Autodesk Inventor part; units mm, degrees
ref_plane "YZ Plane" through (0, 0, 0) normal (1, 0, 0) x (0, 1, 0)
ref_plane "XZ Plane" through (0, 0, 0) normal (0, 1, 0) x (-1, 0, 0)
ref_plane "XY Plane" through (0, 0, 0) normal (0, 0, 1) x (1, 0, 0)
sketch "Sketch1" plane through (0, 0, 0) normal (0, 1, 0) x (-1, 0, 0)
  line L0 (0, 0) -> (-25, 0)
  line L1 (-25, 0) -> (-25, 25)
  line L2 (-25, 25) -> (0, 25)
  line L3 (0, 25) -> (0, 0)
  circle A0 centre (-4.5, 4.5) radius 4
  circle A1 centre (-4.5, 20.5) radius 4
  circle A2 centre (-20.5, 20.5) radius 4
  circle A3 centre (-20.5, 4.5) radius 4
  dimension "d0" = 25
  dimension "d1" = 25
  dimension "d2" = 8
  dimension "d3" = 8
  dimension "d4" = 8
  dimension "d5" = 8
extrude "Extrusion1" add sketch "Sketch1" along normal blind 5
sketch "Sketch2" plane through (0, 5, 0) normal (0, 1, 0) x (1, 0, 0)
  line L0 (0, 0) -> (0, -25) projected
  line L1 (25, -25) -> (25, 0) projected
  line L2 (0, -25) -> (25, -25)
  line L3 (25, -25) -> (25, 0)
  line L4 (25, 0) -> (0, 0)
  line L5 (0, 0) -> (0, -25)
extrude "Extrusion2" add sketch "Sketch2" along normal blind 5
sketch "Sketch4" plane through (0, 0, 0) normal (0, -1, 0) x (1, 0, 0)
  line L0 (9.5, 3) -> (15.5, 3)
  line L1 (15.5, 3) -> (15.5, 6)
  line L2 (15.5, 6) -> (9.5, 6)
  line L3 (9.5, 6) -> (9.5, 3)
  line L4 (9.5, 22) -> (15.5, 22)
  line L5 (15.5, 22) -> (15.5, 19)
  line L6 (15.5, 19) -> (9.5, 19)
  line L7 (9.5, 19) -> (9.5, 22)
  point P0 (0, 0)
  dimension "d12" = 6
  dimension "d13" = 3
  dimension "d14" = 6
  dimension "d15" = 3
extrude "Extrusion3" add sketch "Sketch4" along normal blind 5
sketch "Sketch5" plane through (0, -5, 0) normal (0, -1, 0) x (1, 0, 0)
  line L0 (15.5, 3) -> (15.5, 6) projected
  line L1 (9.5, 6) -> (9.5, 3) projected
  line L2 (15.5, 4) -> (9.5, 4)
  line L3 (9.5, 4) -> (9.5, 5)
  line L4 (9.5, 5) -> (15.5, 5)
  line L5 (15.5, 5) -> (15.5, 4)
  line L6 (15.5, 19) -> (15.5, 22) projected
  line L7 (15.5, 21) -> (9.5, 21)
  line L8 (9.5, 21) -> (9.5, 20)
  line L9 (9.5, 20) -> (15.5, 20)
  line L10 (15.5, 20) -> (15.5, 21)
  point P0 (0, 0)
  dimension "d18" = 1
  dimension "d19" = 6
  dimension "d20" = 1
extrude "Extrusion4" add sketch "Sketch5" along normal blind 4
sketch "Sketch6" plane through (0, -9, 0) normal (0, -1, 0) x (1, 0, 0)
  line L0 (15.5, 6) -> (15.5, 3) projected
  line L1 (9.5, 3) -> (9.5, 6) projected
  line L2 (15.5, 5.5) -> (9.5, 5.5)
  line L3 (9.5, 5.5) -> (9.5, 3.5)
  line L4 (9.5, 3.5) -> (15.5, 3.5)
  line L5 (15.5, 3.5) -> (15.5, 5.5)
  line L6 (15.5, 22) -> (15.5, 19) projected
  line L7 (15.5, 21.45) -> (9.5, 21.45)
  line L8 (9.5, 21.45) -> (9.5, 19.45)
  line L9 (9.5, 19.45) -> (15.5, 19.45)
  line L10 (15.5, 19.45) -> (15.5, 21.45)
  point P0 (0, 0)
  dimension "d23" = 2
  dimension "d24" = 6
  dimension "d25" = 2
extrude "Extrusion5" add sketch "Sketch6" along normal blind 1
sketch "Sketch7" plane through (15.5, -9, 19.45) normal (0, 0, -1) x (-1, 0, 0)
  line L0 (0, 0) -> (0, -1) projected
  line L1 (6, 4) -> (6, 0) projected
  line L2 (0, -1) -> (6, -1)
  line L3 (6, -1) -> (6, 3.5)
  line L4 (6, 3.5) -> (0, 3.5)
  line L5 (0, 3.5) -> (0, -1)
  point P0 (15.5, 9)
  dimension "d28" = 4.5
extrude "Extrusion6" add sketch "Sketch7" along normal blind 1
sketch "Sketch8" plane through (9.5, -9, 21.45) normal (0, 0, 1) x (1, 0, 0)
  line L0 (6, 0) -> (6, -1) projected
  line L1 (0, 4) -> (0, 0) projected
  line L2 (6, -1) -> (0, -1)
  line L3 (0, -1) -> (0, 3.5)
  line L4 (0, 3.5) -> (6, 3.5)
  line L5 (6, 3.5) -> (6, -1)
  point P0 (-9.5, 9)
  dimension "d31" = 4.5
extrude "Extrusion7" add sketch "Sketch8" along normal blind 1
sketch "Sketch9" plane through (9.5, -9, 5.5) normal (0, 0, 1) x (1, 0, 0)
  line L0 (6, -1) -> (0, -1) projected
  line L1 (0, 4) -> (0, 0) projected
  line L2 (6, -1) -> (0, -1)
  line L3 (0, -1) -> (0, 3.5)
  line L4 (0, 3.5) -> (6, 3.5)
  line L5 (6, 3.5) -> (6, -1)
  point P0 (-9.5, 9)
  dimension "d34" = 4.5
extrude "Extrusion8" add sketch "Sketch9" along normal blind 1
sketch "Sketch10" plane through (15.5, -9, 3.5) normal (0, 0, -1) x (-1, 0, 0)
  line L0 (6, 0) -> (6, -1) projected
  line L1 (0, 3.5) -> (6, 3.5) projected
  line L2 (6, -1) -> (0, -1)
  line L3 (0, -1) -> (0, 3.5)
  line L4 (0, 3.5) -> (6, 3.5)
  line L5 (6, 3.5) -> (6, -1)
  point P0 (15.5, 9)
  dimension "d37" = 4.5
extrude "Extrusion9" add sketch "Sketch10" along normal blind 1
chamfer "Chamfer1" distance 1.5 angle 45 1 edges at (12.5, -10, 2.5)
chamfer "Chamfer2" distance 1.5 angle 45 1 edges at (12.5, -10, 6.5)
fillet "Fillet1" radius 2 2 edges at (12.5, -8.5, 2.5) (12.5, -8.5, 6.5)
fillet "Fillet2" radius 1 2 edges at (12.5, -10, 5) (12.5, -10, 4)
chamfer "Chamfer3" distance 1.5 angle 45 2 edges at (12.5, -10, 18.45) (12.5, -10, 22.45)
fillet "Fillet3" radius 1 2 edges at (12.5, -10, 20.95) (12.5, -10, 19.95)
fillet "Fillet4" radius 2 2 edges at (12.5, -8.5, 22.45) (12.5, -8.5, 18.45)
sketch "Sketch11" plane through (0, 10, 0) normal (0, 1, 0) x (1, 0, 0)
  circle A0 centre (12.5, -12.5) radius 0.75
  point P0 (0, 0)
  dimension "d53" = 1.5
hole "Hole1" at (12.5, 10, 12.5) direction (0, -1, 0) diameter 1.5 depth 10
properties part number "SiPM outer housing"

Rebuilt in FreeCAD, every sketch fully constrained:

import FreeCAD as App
import Part
import Sketcher
from FreeCAD import Vector
Q = App.Units.Quantity


def edges_at(feature, points):
    """Names of the edges that pass closest to the given points."""
    edges = feature.Shape.Edges
    near = lambda p: min(range(len(edges)), key=lambda i: edges[i].distToShape(Part.Vertex(*p))[0])
    return sorted({f"Edge{near(p) + 1}" for p in points})


def add_polygon(sketch, points):
    """Adds a closed chain of lines whose ends are joined by coincident constraints."""
    first, n = sketch.GeometryCount, len(points)
    for a, b in zip(points, points[1:] + points[:1]):
        sketch.addGeometry(Part.LineSegment(App.Vector(*a, 0), App.Vector(*b, 0)), False)
    for i in range(n):
        sketch.addConstraint(Sketcher.Constraint("Coincident", first + i, 2, first + (i + 1) % n, 1))

doc = App.newDocument("Part")
body = doc.addObject("PartDesign::Body", "Body")

# Sketch on XZ plane
sketch1 = body.newObject("Sketcher::SketchObject", "Sketch")
sketch1.AttachmentSupport = (doc.getObject("XZ_Plane"), [""])
sketch1.MapMode = "FlatFace"
add_polygon(sketch1, [(25, 0), (0, 0), (0, 25), (25, 25)])  # lines 0-3
sketch1.addGeometry(Part.Circle(Vector(20.5, 4.5, 0), Vector(0, 0, 1), 4), False)  # 4
sketch1.addGeometry(Part.Circle(Vector(4.5, 4.5, 0), Vector(0, 0, 1), 4), False)  # 5
sketch1.addGeometry(Part.Circle(Vector(20.5, 20.5, 0), Vector(0, 0, 1), 4), False)  # 6
sketch1.addGeometry(Part.Circle(Vector(4.5, 20.5, 0), Vector(0, 0, 1), 4), False)  # 7
sketch1.addConstraint([
    Sketcher.Constraint("Horizontal", 0),
    Sketcher.Constraint("Vertical", 1),
    Sketcher.Constraint("Horizontal", 2),
    Sketcher.Constraint("Vertical", 3),
    Sketcher.Constraint("Coincident", 0, 2, -1, 1),
    Sketcher.Constraint("Equal", 4, 5),
    Sketcher.Constraint("Equal", 5, 6),
    Sketcher.Constraint("Equal", 6, 7),
    Sketcher.Constraint("Horizontal", 4, 3, 5, 3),
    Sketcher.Constraint("Horizontal", 6, 3, 7, 3),
    Sketcher.Constraint("Vertical", 4, 3, 6, 3),
    Sketcher.Constraint("Vertical", 5, 3, 7, 3),
    Sketcher.Constraint("Equal", 2, 1),
    Sketcher.Constraint("Diameter", 4, Q("8 mm")),
    Sketcher.Constraint("DistanceX", 0, 2, 0, 1, Q("25 mm")),
    Sketcher.Constraint("DistanceX", 5, 3, 4, 3, Q("16 mm")),
    Sketcher.Constraint("DistanceY", 4, 3, 6, 3, Q("16 mm")),
    Sketcher.Constraint("DistanceX", -1, 1, 4, 3, Q("20.5 mm")),
    Sketcher.Constraint("DistanceY", -1, 1, 4, 3, Q("4.5 mm")),
])
pad1 = body.newObject("PartDesign::Pad", "Pad")
pad1.Profile = sketch1
pad1.Length = 5
pad1.Reversed = True

# Sketch on XZ plane
sketch2 = body.newObject("Sketcher::SketchObject", "Sketch001")
sketch2.AttachmentSupport = (doc.getObject("XZ_Plane"), [""])
sketch2.MapMode = "FlatFace"
sketch2.AttachmentOffset = App.Placement(Vector(0, 0, -5), App.Rotation())
add_polygon(sketch2, [(25, 0), (0, 0), (0, 25), (25, 25)])  # lines 0-3
sketch2.addConstraint([
    Sketcher.Constraint("Horizontal", 0),
    Sketcher.Constraint("Vertical", 1),
    Sketcher.Constraint("Horizontal", 2),
    Sketcher.Constraint("Vertical", 3),
    Sketcher.Constraint("Coincident", 0, 2, -1, 1),
    Sketcher.Constraint("Equal", 2, 1),
    Sketcher.Constraint("DistanceX", 0, 2, 0, 1, Q("25 mm")),
])
pad2 = body.newObject("PartDesign::Pad", "Pad001")
pad2.Profile = sketch2
pad2.Length = 5
pad2.Reversed = True

# Sketch on XZ plane
sketch3 = body.newObject("Sketcher::SketchObject", "Sketch002")
sketch3.AttachmentSupport = (doc.getObject("XZ_Plane"), [""])
sketch3.MapMode = "FlatFace"
add_polygon(sketch3, [(9.5, 6), (9.5, 3), (15.5, 3), (15.5, 6)])  # lines 0-3
add_polygon(sketch3, [(15.5, 22), (9.5, 22), (9.5, 19), (15.5, 19)])  # lines 4-7
sketch3.addConstraint([
    Sketcher.Constraint("Vertical", 0),
    Sketcher.Constraint("Horizontal", 1),
    Sketcher.Constraint("Vertical", 2),
    Sketcher.Constraint("Horizontal", 3),
    Sketcher.Constraint("Horizontal", 4),
    Sketcher.Constraint("Vertical", 5),
    Sketcher.Constraint("Horizontal", 6),
    Sketcher.Constraint("Vertical", 7),
    Sketcher.Constraint("Vertical", 3, 2, 4, 2),
    Sketcher.Constraint("Vertical", 2, 2, 6, 2),
    Sketcher.Constraint("Equal", 2, 5),
    Sketcher.Constraint("DistanceX", 1, 1, 1, 2, Q("6 mm")),
    Sketcher.Constraint("DistanceY", 0, 2, 0, 1, Q("3 mm")),
    Sketcher.Constraint("DistanceY", -1, 1, 0, 2, Q("3 mm")),
    Sketcher.Constraint("DistanceY", -1, 1, 4, 2, Q("22 mm")),
    Sketcher.Constraint("DistanceX", -1, 1, 0, 2, Q("9.5 mm")),
])
pad3 = body.newObject("PartDesign::Pad", "Pad002")
pad3.Profile = sketch3
pad3.Length = 5

# Sketch on XZ plane
sketch4 = body.newObject("Sketcher::SketchObject", "Sketch003")
sketch4.AttachmentSupport = (doc.getObject("XZ_Plane"), [""])
sketch4.MapMode = "FlatFace"
sketch4.AttachmentOffset = App.Placement(Vector(0, 0, 5), App.Rotation())
add_polygon(sketch4, [(9.5, 4), (15.5, 4), (15.5, 5), (9.5, 5)])  # lines 0-3
add_polygon(sketch4, [(9.5, 20), (15.5, 20), (15.5, 21), (9.5, 21)])  # lines 4-7
sketch4.addConstraint([
    Sketcher.Constraint("Horizontal", 0),
    Sketcher.Constraint("Vertical", 1),
    Sketcher.Constraint("Horizontal", 2),
    Sketcher.Constraint("Vertical", 3),
    Sketcher.Constraint("Horizontal", 4),
    Sketcher.Constraint("Vertical", 5),
    Sketcher.Constraint("Horizontal", 6),
    Sketcher.Constraint("Vertical", 7),
    Sketcher.Constraint("Vertical", 1, 2, 4, 2),
    Sketcher.Constraint("Vertical", 3, 2, 6, 2),
    Sketcher.Constraint("Equal", 3, 5),
    Sketcher.Constraint("DistanceX", 0, 1, 0, 2, Q("6 mm")),
    Sketcher.Constraint("DistanceY", 1, 1, 1, 2, Q("1 mm")),
    Sketcher.Constraint("DistanceY", -1, 1, 0, 2, Q("4 mm")),
    Sketcher.Constraint("DistanceY", -1, 1, 4, 2, Q("20 mm")),
    Sketcher.Constraint("DistanceX", -1, 1, 0, 2, Q("15.5 mm")),
])
pad4 = body.newObject("PartDesign::Pad", "Pad003")
pad4.Profile = sketch4
pad4.Length = 4

# Sketch on XZ plane
sketch5 = body.newObject("Sketcher::SketchObject", "Sketch004")
sketch5.AttachmentSupport = (doc.getObject("XZ_Plane"), [""])
sketch5.MapMode = "FlatFace"
sketch5.AttachmentOffset = App.Placement(Vector(0, 0, 9), App.Rotation())
add_polygon(sketch5, [(15.5, 3.5), (15.5, 5.5), (9.5, 5.5), (9.5, 3.5)])  # lines 0-3
add_polygon(sketch5, [(15.5, 19.45), (15.5, 21.45), (9.5, 21.45), (9.5, 19.45)])  # lines 4-7
sketch5.addConstraint([
    Sketcher.Constraint("Vertical", 0),
    Sketcher.Constraint("Horizontal", 1),
    Sketcher.Constraint("Vertical", 2),
    Sketcher.Constraint("Horizontal", 3),
    Sketcher.Constraint("Vertical", 4),
    Sketcher.Constraint("Horizontal", 5),
    Sketcher.Constraint("Vertical", 6),
    Sketcher.Constraint("Horizontal", 7),
    Sketcher.Constraint("Vertical", 3, 2, 4, 2),
    Sketcher.Constraint("Vertical", 2, 2, 5, 2),
    Sketcher.Constraint("Equal", 2, 4),
    Sketcher.Constraint("DistanceX", 1, 2, 1, 1, Q("6 mm")),
    Sketcher.Constraint("DistanceY", 0, 1, 0, 2, Q("2 mm")),
    Sketcher.Constraint("DistanceX", -1, 1, 0, 2, Q("15.5 mm")),
    Sketcher.Constraint("DistanceY", -1, 1, 0, 2, Q("5.5 mm")),
    Sketcher.Constraint("DistanceY", -1, 1, 4, 2, Q("21.45 mm")),
])
pad5 = body.newObject("PartDesign::Pad", "Pad004")
pad5.Profile = sketch5
pad5.Length = 1

# Sketch on XY plane
sketch6 = body.newObject("Sketcher::SketchObject", "Sketch005")
sketch6.AttachmentSupport = (doc.getObject("XY_Plane"), [""])
sketch6.MapMode = "FlatFace"
sketch6.AttachmentOffset = App.Placement(Vector(0, 0, 19.45), App.Rotation())
add_polygon(sketch6, [(15.5, -5.5), (15.5, -10), (9.5, -10), (9.5, -5.5)])  # lines 0-3
sketch6.addConstraint([
    Sketcher.Constraint("Vertical", 0),
    Sketcher.Constraint("Horizontal", 1),
    Sketcher.Constraint("Vertical", 2),
    Sketcher.Constraint("Horizontal", 3),
    Sketcher.Constraint("DistanceY", 0, 2, 0, 1, Q("4.5 mm")),
    Sketcher.Constraint("DistanceX", 1, 2, 1, 1, Q("6 mm")),
    Sketcher.Constraint("DistanceY", 0, 2, -1, 1, Q("10 mm")),
    Sketcher.Constraint("DistanceX", -1, 1, 0, 2, Q("15.5 mm")),
])
pad6 = body.newObject("PartDesign::Pad", "Pad005")
pad6.Profile = sketch6
pad6.Length = 1
pad6.Reversed = True

# Sketch on XY plane
sketch7 = body.newObject("Sketcher::SketchObject", "Sketch006")
sketch7.AttachmentSupport = (doc.getObject("XY_Plane"), [""])
sketch7.MapMode = "FlatFace"
sketch7.AttachmentOffset = App.Placement(Vector(0, 0, 21.45), App.Rotation())
add_polygon(sketch7, [(15.5, -10), (15.5, -5.5), (9.5, -5.5), (9.5, -10)])  # lines 0-3
sketch7.addConstraint([
    Sketcher.Constraint("Vertical", 0),
    Sketcher.Constraint("Horizontal", 1),
    Sketcher.Constraint("Vertical", 2),
    Sketcher.Constraint("Horizontal", 3),
    Sketcher.Constraint("DistanceY", 0, 1, 0, 2, Q("4.5 mm")),
    Sketcher.Constraint("DistanceX", 1, 2, 1, 1, Q("6 mm")),
    Sketcher.Constraint("DistanceY", 2, 2, -1, 1, Q("10 mm")),
    Sketcher.Constraint("DistanceX", -1, 1, 0, 2, Q("15.5 mm")),
])
pad7 = body.newObject("PartDesign::Pad", "Pad006")
pad7.Profile = sketch7
pad7.Length = 1

# Sketch on XY plane
sketch8 = body.newObject("Sketcher::SketchObject", "Sketch007")
sketch8.AttachmentSupport = (doc.getObject("XY_Plane"), [""])
sketch8.MapMode = "FlatFace"
sketch8.AttachmentOffset = App.Placement(Vector(0, 0, 5.5), App.Rotation())
add_polygon(sketch8, [(9.5, -10), (15.5, -10), (15.5, -5.5), (9.5, -5.5)])  # lines 0-3
sketch8.addConstraint([
    Sketcher.Constraint("Horizontal", 0),
    Sketcher.Constraint("Vertical", 1),
    Sketcher.Constraint("Horizontal", 2),
    Sketcher.Constraint("Vertical", 3),
    Sketcher.Constraint("DistanceY", 1, 1, 1, 2, Q("4.5 mm")),
    Sketcher.Constraint("DistanceX", 0, 1, 0, 2, Q("6 mm")),
    Sketcher.Constraint("DistanceY", 0, 2, -1, 1, Q("10 mm")),
    Sketcher.Constraint("DistanceX", -1, 1, 0, 2, Q("15.5 mm")),
])
pad8 = body.newObject("PartDesign::Pad", "Pad007")
pad8.Profile = sketch8
pad8.Length = 1

# Sketch on XY plane
sketch9 = body.newObject("Sketcher::SketchObject", "Sketch008")
sketch9.AttachmentSupport = (doc.getObject("XY_Plane"), [""])
sketch9.MapMode = "FlatFace"
sketch9.AttachmentOffset = App.Placement(Vector(0, 0, 3.5), App.Rotation())
add_polygon(sketch9, [(9.5, -10), (9.5, -5.5), (15.5, -5.5), (15.5, -10)])  # lines 0-3
sketch9.addConstraint([
    Sketcher.Constraint("Vertical", 0),
    Sketcher.Constraint("Horizontal", 1),
    Sketcher.Constraint("Vertical", 2),
    Sketcher.Constraint("Horizontal", 3),
    Sketcher.Constraint("DistanceY", 0, 1, 0, 2, Q("4.5 mm")),
    Sketcher.Constraint("DistanceX", 1, 1, 1, 2, Q("6 mm")),
    Sketcher.Constraint("DistanceY", 2, 2, -1, 1, Q("10 mm")),
    Sketcher.Constraint("DistanceX", -1, 1, 0, 2, Q("9.5 mm")),
])
pad9 = body.newObject("PartDesign::Pad", "Pad008")
pad9.Profile = sketch9
pad9.Length = 1
pad9.Reversed = True
doc.recompute()

chamfer = body.newObject("PartDesign::Chamfer", "Chamfer")
chamfer.Base = (pad9, edges_at(pad9, [(12.5, -10, 2.5)]))
chamfer.Size = 1.5
doc.recompute()

chamfer2 = body.newObject("PartDesign::Chamfer", "Chamfer001")
chamfer2.Base = (chamfer, edges_at(chamfer, [(12.5, -10, 6.5)]))
chamfer2.Size = 1.5
doc.recompute()

fillet = body.newObject("PartDesign::Fillet", "Fillet")
fillet.Base = (chamfer2, edges_at(chamfer2, [(12.5, -8.5, 2.5), (12.5, -8.5, 6.5)]))
fillet.Radius = 2
doc.recompute()

fillet2 = body.newObject("PartDesign::Fillet", "Fillet001")
fillet2.Base = (fillet, edges_at(fillet, [(12.5, -10, 5), (12.5, -10, 4)]))
fillet2.Radius = 1
doc.recompute()

chamfer3 = body.newObject("PartDesign::Chamfer", "Chamfer002")
chamfer3.Base = (fillet2, edges_at(fillet2, [(12.5, -10, 18.45), (12.5, -10, 22.45)]))
chamfer3.Size = 1.5
doc.recompute()

fillet3 = body.newObject("PartDesign::Fillet", "Fillet002")
fillet3.Base = (chamfer3, edges_at(chamfer3, [(12.5, -10, 20.95), (12.5, -10, 19.95)]))
fillet3.Radius = 1
doc.recompute()

fillet4 = body.newObject("PartDesign::Fillet", "Fillet003")
fillet4.Base = (fillet3, edges_at(fillet3, [(12.5, -8.5, 22.45), (12.5, -8.5, 18.45)]))
fillet4.Radius = 2

# Sketch on XZ plane
sketch10 = body.newObject("Sketcher::SketchObject", "Sketch009")
sketch10.AttachmentSupport = (doc.getObject("XZ_Plane"), [""])
sketch10.MapMode = "FlatFace"
sketch10.AttachmentOffset = App.Placement(Vector(0, 0, -10), App.Rotation())
sketch10.addGeometry(Part.Circle(Vector(12.5, 12.5, 0), Vector(0, 0, 1), 0.75), False)
sketch10.addConstraint([
    Sketcher.Constraint("Diameter", 0, Q("1.5 mm")),
    Sketcher.Constraint("DistanceX", -1, 1, 0, 3, Q("12.5 mm")),
    Sketcher.Constraint("DistanceY", -1, 1, 0, 3, Q("12.5 mm")),
])
doc.recompute()
hole = body.newObject("PartDesign::Hole", "Hole")
hole.Profile = sketch10
hole.ThreadType = "None"
hole.Diameter = 1.5
hole.DepthType = "Dimension"
hole.Depth = 10
hole.DrillPoint = "Flat"
hole.Reversed = True

doc.recompute()
